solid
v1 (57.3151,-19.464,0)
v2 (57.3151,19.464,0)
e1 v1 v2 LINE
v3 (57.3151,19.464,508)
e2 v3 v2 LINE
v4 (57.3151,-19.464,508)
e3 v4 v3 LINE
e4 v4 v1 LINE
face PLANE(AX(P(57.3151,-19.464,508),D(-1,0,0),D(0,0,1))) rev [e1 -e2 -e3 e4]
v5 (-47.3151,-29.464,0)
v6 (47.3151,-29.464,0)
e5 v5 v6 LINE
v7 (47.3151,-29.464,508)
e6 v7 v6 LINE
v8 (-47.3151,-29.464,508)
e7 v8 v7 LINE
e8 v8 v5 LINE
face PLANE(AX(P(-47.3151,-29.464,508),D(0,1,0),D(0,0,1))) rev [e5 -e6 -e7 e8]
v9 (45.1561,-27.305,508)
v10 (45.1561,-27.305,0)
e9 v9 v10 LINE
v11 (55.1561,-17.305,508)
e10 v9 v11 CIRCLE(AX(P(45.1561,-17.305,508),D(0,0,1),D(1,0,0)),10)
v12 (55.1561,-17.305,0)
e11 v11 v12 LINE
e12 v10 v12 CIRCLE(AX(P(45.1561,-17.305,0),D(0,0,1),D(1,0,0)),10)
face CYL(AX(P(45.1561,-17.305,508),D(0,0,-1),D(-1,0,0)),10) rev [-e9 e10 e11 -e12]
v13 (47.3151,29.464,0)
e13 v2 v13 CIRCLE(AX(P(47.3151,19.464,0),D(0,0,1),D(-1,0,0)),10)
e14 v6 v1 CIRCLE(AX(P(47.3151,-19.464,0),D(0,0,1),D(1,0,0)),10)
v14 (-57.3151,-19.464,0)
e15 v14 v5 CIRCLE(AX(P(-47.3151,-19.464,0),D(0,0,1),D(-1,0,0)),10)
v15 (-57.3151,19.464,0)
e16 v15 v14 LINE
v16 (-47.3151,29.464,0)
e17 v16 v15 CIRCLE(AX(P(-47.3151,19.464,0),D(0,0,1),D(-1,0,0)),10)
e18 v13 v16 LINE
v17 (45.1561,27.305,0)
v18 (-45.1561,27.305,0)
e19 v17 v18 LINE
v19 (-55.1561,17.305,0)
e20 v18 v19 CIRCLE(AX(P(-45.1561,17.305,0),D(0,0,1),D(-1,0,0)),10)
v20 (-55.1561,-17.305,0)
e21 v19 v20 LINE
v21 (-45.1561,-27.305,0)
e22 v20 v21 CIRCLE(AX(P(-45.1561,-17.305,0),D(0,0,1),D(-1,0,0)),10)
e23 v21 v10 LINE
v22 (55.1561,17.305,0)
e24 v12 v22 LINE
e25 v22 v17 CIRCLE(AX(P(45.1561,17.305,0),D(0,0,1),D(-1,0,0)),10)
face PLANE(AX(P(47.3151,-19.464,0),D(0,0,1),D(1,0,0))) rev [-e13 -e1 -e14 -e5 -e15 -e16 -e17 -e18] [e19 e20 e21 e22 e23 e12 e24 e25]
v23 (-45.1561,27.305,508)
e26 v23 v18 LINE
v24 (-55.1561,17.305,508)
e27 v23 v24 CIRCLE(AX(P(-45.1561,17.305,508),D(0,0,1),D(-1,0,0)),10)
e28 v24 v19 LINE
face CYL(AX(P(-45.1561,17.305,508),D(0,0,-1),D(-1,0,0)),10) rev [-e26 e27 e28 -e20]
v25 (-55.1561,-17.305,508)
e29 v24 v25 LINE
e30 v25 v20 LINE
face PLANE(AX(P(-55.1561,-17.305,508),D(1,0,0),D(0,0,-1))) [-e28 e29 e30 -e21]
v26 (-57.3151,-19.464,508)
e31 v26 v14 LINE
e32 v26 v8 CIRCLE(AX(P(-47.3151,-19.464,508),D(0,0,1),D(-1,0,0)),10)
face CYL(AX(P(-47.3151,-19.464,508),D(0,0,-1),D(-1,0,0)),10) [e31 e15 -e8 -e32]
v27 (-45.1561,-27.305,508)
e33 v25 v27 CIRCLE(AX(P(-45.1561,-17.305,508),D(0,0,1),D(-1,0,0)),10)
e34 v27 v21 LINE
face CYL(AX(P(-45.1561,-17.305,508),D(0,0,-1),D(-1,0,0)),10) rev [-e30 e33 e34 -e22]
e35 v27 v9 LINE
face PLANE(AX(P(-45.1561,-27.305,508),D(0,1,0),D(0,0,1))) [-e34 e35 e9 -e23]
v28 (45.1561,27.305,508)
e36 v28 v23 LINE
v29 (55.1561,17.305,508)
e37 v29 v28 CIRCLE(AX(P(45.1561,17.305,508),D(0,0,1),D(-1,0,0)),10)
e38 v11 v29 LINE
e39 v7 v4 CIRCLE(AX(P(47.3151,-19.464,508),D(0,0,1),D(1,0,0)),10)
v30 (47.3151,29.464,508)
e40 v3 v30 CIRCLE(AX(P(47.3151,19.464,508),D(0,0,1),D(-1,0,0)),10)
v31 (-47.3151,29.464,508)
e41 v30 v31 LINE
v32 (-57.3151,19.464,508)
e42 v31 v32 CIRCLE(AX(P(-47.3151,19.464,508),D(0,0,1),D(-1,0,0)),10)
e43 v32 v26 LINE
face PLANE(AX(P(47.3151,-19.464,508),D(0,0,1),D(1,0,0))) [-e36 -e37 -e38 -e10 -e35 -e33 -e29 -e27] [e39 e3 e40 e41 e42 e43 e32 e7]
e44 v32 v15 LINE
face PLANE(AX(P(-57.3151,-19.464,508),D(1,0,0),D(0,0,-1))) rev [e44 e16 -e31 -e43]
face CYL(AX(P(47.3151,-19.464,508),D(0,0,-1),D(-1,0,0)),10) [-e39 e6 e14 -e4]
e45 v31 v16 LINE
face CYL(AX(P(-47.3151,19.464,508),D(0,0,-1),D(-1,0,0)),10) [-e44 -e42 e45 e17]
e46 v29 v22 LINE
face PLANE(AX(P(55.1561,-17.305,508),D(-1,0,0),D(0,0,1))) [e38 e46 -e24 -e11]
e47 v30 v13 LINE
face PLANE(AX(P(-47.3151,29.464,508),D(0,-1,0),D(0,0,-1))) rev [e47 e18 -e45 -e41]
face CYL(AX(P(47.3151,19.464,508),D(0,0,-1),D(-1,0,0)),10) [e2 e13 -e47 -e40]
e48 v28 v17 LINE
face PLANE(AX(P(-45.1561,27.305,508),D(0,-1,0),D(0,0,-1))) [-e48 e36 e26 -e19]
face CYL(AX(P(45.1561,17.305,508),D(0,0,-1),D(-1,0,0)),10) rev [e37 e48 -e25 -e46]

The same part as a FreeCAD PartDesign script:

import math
import FreeCAD as App
import Part
import Sketcher
from FreeCAD import Vector

doc = App.newDocument("Part")
params = doc.addObject("Spreadsheet::Sheet", "Params")
for row, (alias, value) in enumerate([
    ("sketch1_radius", "10 mm"),
    ("sketch1_height", "34.61 mm"),
    ("pad1_length", "508 mm"),
], start=1):
    params.set(f"A{row}", alias)
    params.set(f"B{row}", "=" + value)
    params.setAlias(f"B{row}", alias)

body = doc.addObject("PartDesign::Body", "Body")

sketch1 = body.newObject("Sketcher::SketchObject", "Sketch")
sketch1.AttachmentSupport = (doc.getObject("XY_Plane"), [""])
sketch1.MapMode = "FlatFace"
sketch1.addGeometry(Part.LineSegment(Vector(-47, -29, 0), Vector(47, -29, 0)), False)
sketch1.addGeometry(Part.ArcOfCircle(Part.Circle(Vector(47, -19, 0), Vector(0, 0, 1), 10), math.radians(-90), math.radians(0)), False)
sketch1.addGeometry(Part.LineSegment(Vector(57, -19, 0), Vector(57, 19, 0)), False)
sketch1.addGeometry(Part.ArcOfCircle(Part.Circle(Vector(47, 19, 0), Vector(0, 0, 1), 10), math.radians(0), math.radians(90)), False)
sketch1.addGeometry(Part.LineSegment(Vector(47, 29, 0), Vector(-47, 29, 0)), False)
sketch1.addGeometry(Part.ArcOfCircle(Part.Circle(Vector(-47, 19, 0), Vector(0, 0, 1), 10), math.radians(90), math.radians(180)), False)
sketch1.addGeometry(Part.LineSegment(Vector(-57, 19, 0), Vector(-57, -19, 0)), False)
sketch1.addGeometry(Part.ArcOfCircle(Part.Circle(Vector(-47, -19, 0), Vector(0, 0, 1), 10), math.radians(180), math.radians(270)), False)
sketch1.addGeometry(Part.LineSegment(Vector(45, -27, 0), Vector(-45, -27, 0)), False)
sketch1.addGeometry(Part.ArcOfCircle(Part.Circle(Vector(-45, -17, 0), Vector(0, 0, 1), 10), math.radians(180), math.radians(270)), False)
sketch1.addGeometry(Part.LineSegment(Vector(-55, -17, 0), Vector(-55, 17, 0)), False)
sketch1.addGeometry(Part.ArcOfCircle(Part.Circle(Vector(-45, 17, 0), Vector(0, 0, 1), 10), math.radians(90), math.radians(180)), False)
sketch1.addGeometry(Part.LineSegment(Vector(-45, 27, 0), Vector(45, 27, 0)), False)
sketch1.addGeometry(Part.ArcOfCircle(Part.Circle(Vector(45, 17, 0), Vector(0, 0, 1), 10), math.radians(0), math.radians(90)), False)
sketch1.addGeometry(Part.LineSegment(Vector(55, 17, 0), Vector(55, -17, 0)), False)
sketch1.addGeometry(Part.ArcOfCircle(Part.Circle(Vector(45, -17, 0), Vector(0, 0, 1), 10), math.radians(-90), math.radians(0)), False)
sketch1.addConstraint(Sketcher.Constraint("Tangent", 0, 2, 1, 1))
sketch1.addConstraint(Sketcher.Constraint("Tangent", 1, 2, 2, 1))
sketch1.addConstraint(Sketcher.Constraint("Tangent", 2, 2, 3, 1))
sketch1.addConstraint(Sketcher.Constraint("Tangent", 3, 2, 4, 1))
sketch1.addConstraint(Sketcher.Constraint("Tangent", 4, 2, 5, 1))
sketch1.addConstraint(Sketcher.Constraint("Tangent", 5, 2, 6, 1))
sketch1.addConstraint(Sketcher.Constraint("Tangent", 6, 2, 7, 1))
sketch1.addConstraint(Sketcher.Constraint("Tangent", 7, 2, 0, 1))
sketch1.addConstraint(Sketcher.Constraint("Tangent", 8, 2, 9, 2))
sketch1.addConstraint(Sketcher.Constraint("Tangent", 9, 1, 10, 1))
sketch1.addConstraint(Sketcher.Constraint("Tangent", 10, 2, 11, 2))
sketch1.addConstraint(Sketcher.Constraint("Tangent", 11, 1, 12, 1))
sketch1.addConstraint(Sketcher.Constraint("Tangent", 12, 2, 13, 2))
sketch1.addConstraint(Sketcher.Constraint("Tangent", 13, 1, 14, 1))
sketch1.addConstraint(Sketcher.Constraint("Tangent", 14, 2, 15, 2))
sketch1.addConstraint(Sketcher.Constraint("Tangent", 15, 1, 8, 1))
sketch1.addConstraint(Sketcher.Constraint("Horizontal", 0))
sketch1.addConstraint(Sketcher.Constraint("Vertical", 2))
sketch1.addConstraint(Sketcher.Constraint("Horizontal", 4))
sketch1.addConstraint(Sketcher.Constraint("Vertical", 6))
sketch1.addConstraint(Sketcher.Constraint("Horizontal", 8))
sketch1.addConstraint(Sketcher.Constraint("Vertical", 10))
sketch1.addConstraint(Sketcher.Constraint("Horizontal", 12))
sketch1.addConstraint(Sketcher.Constraint("Vertical", 14))
sketch1.addConstraint(Sketcher.Constraint("Equal", 1, 3))
sketch1.addConstraint(Sketcher.Constraint("Equal", 3, 5))
sketch1.addConstraint(Sketcher.Constraint("Equal", 5, 7))
sketch1.addConstraint(Sketcher.Constraint("Equal", 7, 9))
sketch1.addConstraint(Sketcher.Constraint("Equal", 9, 11))
sketch1.addConstraint(Sketcher.Constraint("Equal", 11, 13))
sketch1.addConstraint(Sketcher.Constraint("Equal", 13, 15))
sketch1.addConstraint(Sketcher.Constraint("Symmetric", 1, 3, 5, 3, -1, 1))
sketch1.addConstraint(Sketcher.Constraint("Symmetric", 9, 3, 13, 3, -1, 1))
sketch1.addConstraint(Sketcher.Constraint("Radius", 1, 10.0))
sketch1.addConstraint(Sketcher.Constraint("DistanceY", 10, 1, 10, 2, 34.61))
sketch1.addConstraint(Sketcher.Constraint("DistanceY", 2, 1, 2, 2, 38.928))
sketch1.addConstraint(Sketcher.Constraint("DistanceX", 0, 1, 0, 2, 94.6302))
sketch1.addConstraint(Sketcher.Constraint("DistanceX", 8, 2, 8, 1, 90.3122))
sketch1.setExpression("Constraints[33]", "Params.sketch1_radius")
sketch1.setExpression("Constraints[34]", "Params.sketch1_height")
pad1 = body.newObject("PartDesign::Pad", "Pad")
pad1.Profile = sketch1
pad1.setExpression("Length", "Params.pad1_length")

doc.recompute()
